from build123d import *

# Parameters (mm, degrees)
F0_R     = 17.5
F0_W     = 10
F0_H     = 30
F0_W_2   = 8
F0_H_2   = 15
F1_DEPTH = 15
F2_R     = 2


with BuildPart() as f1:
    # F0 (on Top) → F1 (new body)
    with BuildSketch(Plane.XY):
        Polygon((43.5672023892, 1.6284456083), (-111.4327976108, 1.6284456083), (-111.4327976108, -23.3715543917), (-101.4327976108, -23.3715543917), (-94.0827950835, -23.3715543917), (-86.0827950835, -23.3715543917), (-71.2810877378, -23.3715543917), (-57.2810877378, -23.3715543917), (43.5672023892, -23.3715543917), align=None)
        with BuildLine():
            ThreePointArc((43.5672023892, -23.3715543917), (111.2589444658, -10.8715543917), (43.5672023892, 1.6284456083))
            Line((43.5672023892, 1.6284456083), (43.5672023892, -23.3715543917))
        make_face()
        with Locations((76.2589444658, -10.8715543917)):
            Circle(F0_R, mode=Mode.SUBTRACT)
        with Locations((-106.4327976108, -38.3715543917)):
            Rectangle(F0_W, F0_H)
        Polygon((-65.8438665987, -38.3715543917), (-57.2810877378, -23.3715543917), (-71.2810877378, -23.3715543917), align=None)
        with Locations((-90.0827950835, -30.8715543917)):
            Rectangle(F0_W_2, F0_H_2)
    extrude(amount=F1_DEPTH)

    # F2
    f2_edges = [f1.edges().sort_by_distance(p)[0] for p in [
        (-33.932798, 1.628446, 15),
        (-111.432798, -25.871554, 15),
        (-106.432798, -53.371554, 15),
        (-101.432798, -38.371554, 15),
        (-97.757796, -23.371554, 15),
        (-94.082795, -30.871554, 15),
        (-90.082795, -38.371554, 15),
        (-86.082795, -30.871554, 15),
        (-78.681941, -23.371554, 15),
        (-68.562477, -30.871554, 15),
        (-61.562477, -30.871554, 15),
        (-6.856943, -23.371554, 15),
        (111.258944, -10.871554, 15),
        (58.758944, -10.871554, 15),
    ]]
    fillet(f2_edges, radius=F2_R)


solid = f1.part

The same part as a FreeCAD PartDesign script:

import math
import FreeCAD as App
import Part
import Sketcher

V = App.Vector
Q = App.Units.Quantity


def edges_at(feature, points):
    """Names of the edges that pass closest to the given points."""
    edges = feature.Shape.Edges
    near = lambda p: min(range(len(edges)), key=lambda i: edges[i].distToShape(Part.Vertex(*p))[0])
    return sorted({f"Edge{near(p) + 1}" for p in points})

doc = App.newDocument("Part")
body = doc.addObject("PartDesign::Body", "Body")

sketch1 = body.newObject("Sketcher::SketchObject", "Sketch")
sketch1.AttachmentSupport = (doc.getObject("XY_Plane"), [""])
sketch1.MapMode = "FlatFace"
sketch1.addGeometry([
    Part.LineSegment(V(44, 2, 0), V(-111, 2, 0)),
    Part.LineSegment(V(-111, 2, 0), V(-111, -53, 0)),
    Part.LineSegment(V(-111, -53, 0), V(-101, -53, 0)),
    Part.LineSegment(V(-101, -53, 0), V(-101, -23, 0)),
    Part.LineSegment(V(-101, -23, 0), V(-94, -23, 0)),
    Part.LineSegment(V(-94, -23, 0), V(-94, -38, 0)),
    Part.LineSegment(V(-94, -38, 0), V(-86, -38, 0)),
    Part.LineSegment(V(-86, -38, 0), V(-86, -23, 0)),
    Part.LineSegment(V(-86, -23, 0), V(-71, -23, 0)),
    Part.LineSegment(V(-71, -23, 0), V(-66, -38, 0)),
    Part.LineSegment(V(-66, -38, 0), V(-57, -23, 0)),
    Part.LineSegment(V(-57, -23, 0), V(44, -23, 0)),
    Part.ArcOfCircle(Part.Circle(V(76, -11, 0), V(0, 0, 1), 35), math.radians(-159), math.radians(159)),
    Part.Circle(V(76, -11, 0), V(0, 0, 1), 18),
], False)
sketch1.addConstraint([
    Sketcher.Constraint("Coincident", 0, 2, 1, 1),
    Sketcher.Constraint("Coincident", 1, 2, 2, 1),
    Sketcher.Constraint("Coincident", 2, 2, 3, 1),
    Sketcher.Constraint("Coincident", 3, 2, 4, 1),
    Sketcher.Constraint("Coincident", 4, 2, 5, 1),
    Sketcher.Constraint("Coincident", 5, 2, 6, 1),
    Sketcher.Constraint("Coincident", 6, 2, 7, 1),
    Sketcher.Constraint("Coincident", 7, 2, 8, 1),
    Sketcher.Constraint("Coincident", 8, 2, 9, 1),
    Sketcher.Constraint("Coincident", 9, 2, 10, 1),
    Sketcher.Constraint("Coincident", 10, 2, 11, 1),
    Sketcher.Constraint("Coincident", 11, 2, 12, 1),
    Sketcher.Constraint("Coincident", 12, 2, 0, 1),
    Sketcher.Constraint("Horizontal", 0),
    Sketcher.Constraint("Vertical", 1),
    Sketcher.Constraint("Horizontal", 2),
    Sketcher.Constraint("Vertical", 3),
    Sketcher.Constraint("Horizontal", 4),
    Sketcher.Constraint("Vertical", 5),
    Sketcher.Constraint("Horizontal", 6),
    Sketcher.Constraint("Vertical", 7),
    Sketcher.Constraint("Horizontal", 8),
    Sketcher.Constraint("Horizontal", 11),
    Sketcher.Constraint("Coincident", 13, 3, 12, 3),
    Sketcher.Constraint("Horizontal", 4, 2, 7, 2),
    Sketcher.Constraint("Horizontal", 6, 2, 9, 2),
    Sketcher.Constraint("Horizontal", 8, 2, 10, 2),
    Sketcher.Constraint("Vertical", 11, 2, 12, 2),
    Sketcher.Constraint("Diameter", 13, Q("35 mm")),
    Sketcher.Constraint("Radius", 12, Q("35 mm")),
    Sketcher.Constraint("DistanceX", 0, 2, 0, 1, Q("155 mm")),
    Sketcher.Constraint("DistanceX", 2, 1, 2, 2, Q("10 mm")),
    Sketcher.Constraint("DistanceX", 6, 1, 6, 2, Q("8 mm")),
    Sketcher.Constraint("DistanceY", 1, 2, 1, 1, Q("55 mm")),
    Sketcher.Constraint("DistanceY", 3, 1, 3, 2, Q("30 mm")),
    Sketcher.Constraint("DistanceY", 5, 2, 5, 1, Q("15 mm")),
    Sketcher.Constraint("DistanceX", 8, 2, 10, 2, Q("14 mm")),
    Sketcher.Constraint("DistanceX", 11, 1, 11, 2, Q("100.84829 mm")),
    Sketcher.Constraint("DistanceX", 4, 1, 4, 2, Q("7.350003 mm")),
    Sketcher.Constraint("DistanceX", 8, 2, 9, 2, Q("5.437221 mm")),
    Sketcher.Constraint("DistanceX", -1, 1, 12, 3, Q("76.258944 mm")),
    Sketcher.Constraint("DistanceY", 12, 3, -1, 1, Q("10.871554 mm")),
])
pad1 = body.newObject("PartDesign::Pad", "Pad")
pad1.Profile = sketch1
pad1.Length = 15
doc.recompute()

fillet = body.newObject("PartDesign::Fillet", "Fillet")
fillet.Base = (pad1, edges_at(pad1, [
    (-33.933, 1.628, 15),
    (-111.433, -25.872, 15),
    (-106.433, -53.372, 15),
    (-101.433, -38.372, 15),
    (-97.758, -23.372, 15),
    (-94.083, -30.872, 15),
    (-90.083, -38.372, 15),
    (-86.083, -30.872, 15),
    (-78.682, -23.372, 15),
    (-68.562, -30.872, 15),
    (-61.562, -30.872, 15),
    (-6.857, -23.372, 15),
    (111.259, -10.872, 15),
    (58.759, -10.872, 15),
]))
fillet.Radius = 2

doc.recompute()
